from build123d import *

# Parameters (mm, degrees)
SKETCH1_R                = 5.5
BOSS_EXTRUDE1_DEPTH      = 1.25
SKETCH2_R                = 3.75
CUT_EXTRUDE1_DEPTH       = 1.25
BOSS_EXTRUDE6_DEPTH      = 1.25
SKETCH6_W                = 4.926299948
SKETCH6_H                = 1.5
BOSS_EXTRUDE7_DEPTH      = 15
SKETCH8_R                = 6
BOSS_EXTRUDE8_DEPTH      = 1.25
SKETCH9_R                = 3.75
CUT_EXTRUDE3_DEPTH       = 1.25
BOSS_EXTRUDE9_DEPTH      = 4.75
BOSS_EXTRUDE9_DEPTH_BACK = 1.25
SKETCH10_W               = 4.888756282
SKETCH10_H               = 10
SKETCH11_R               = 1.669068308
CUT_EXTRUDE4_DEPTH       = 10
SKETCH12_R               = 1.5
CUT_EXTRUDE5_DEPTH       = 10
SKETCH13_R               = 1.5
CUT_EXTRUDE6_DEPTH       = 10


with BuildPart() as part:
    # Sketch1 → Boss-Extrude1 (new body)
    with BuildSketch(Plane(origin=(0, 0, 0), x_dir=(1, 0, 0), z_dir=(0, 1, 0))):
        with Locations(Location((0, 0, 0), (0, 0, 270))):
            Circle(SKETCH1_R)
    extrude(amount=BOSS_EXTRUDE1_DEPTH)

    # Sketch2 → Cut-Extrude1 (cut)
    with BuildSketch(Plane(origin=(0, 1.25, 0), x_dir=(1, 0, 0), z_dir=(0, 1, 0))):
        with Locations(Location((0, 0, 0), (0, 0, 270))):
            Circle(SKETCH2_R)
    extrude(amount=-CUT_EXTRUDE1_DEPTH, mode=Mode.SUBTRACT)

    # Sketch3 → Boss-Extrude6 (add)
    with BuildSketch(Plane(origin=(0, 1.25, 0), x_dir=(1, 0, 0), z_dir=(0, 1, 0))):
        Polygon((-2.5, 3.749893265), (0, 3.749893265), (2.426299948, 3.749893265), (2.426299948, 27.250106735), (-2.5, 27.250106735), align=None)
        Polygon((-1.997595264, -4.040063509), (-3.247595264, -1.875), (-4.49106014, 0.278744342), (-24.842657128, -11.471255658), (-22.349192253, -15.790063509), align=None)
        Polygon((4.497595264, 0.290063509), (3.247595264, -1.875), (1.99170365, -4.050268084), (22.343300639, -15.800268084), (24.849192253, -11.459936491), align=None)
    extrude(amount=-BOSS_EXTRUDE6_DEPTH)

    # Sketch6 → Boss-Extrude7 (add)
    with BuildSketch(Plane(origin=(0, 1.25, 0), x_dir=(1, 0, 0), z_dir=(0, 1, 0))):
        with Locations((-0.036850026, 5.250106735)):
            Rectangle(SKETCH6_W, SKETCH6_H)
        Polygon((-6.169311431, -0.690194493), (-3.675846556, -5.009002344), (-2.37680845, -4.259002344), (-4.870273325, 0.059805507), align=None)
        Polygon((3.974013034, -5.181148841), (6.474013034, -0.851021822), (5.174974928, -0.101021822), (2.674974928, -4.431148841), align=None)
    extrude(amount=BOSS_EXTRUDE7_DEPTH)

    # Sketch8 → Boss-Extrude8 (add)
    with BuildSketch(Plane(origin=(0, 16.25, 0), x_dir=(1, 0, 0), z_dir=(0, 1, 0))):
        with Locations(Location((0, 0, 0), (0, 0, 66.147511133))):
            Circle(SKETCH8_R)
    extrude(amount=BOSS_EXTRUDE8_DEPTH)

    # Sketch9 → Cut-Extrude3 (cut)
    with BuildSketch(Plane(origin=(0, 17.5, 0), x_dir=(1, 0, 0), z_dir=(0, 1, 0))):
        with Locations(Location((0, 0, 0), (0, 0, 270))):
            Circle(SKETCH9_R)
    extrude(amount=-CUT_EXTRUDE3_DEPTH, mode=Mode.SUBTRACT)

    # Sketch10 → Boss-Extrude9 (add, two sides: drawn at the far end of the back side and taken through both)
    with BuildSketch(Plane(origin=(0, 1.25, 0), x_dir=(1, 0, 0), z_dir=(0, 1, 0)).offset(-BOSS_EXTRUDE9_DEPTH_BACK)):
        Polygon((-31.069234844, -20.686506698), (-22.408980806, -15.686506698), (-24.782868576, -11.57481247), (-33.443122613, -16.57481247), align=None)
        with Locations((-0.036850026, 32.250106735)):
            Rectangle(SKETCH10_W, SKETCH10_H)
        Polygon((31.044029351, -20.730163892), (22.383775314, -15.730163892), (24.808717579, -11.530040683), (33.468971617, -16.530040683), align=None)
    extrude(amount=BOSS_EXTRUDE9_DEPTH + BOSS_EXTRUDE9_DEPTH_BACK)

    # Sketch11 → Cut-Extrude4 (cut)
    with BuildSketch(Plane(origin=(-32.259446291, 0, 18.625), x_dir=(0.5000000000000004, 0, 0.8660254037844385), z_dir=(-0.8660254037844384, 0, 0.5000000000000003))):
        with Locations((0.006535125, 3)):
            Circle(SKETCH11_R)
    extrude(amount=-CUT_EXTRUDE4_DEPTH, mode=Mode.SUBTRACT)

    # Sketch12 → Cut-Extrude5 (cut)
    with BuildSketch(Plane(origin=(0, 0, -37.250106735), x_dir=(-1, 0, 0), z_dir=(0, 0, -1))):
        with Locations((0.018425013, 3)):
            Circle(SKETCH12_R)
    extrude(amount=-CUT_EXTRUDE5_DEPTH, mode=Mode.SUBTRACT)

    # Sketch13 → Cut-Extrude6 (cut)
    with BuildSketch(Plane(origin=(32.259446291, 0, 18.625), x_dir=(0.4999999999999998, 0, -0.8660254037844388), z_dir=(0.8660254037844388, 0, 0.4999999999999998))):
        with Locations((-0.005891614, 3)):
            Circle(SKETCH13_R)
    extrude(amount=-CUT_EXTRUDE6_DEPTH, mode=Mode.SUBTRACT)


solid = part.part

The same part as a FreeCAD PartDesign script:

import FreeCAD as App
import Part
import Sketcher

V = App.Vector
Q = App.Units.Quantity


def add_polygon(sketch, points):
    """Adds a closed chain of lines whose ends are joined by coincident constraints."""
    first, n = sketch.GeometryCount, len(points)
    for a, b in zip(points, points[1:] + points[:1]):
        sketch.addGeometry(Part.LineSegment(App.Vector(*a, 0), App.Vector(*b, 0)), False)
    for i in range(n):
        sketch.addConstraint(Sketcher.Constraint("Coincident", first + i, 2, first + (i + 1) % n, 1))

doc = App.newDocument("Part")
body = doc.addObject("PartDesign::Body", "Body")

sketch1 = body.newObject("Sketcher::SketchObject", "Sketch")
sketch1.AttachmentSupport = (doc.getObject("XZ_Plane"), [""])
sketch1.MapMode = "FlatFace"
sketch1.addGeometry(Part.Circle(V(0, 0, 0), V(0, 0, 1), 6), False)
sketch1.addConstraint(Sketcher.Constraint("Coincident", 0, 3, -1, 1))
sketch1.addConstraint(Sketcher.Constraint("Diameter", 0, Q("11 mm")))
pad1 = body.newObject("PartDesign::Pad", "Pad")
pad1.Profile = sketch1
pad1.Length = 1.25
pad1.Reversed = True

sketch2 = body.newObject("Sketcher::SketchObject", "Sketch001")
sketch2.AttachmentSupport = (doc.getObject("XZ_Plane"), [""])
sketch2.MapMode = "FlatFace"
sketch2.AttachmentOffset = App.Placement(V(0, 0, -1.25), App.Rotation())
sketch2.addGeometry(Part.Circle(V(0, 0, 0), V(0, 0, 1), 3.8), False)
sketch2.addConstraint(Sketcher.Constraint("Coincident", 0, 3, -1, 1))
sketch2.addConstraint(Sketcher.Constraint("Diameter", 0, Q("7.5 mm")))
pocket1 = body.newObject("PartDesign::Pocket", "Pocket")
pocket1.Profile = sketch2
pocket1.Length = 1.25
pocket1.Reversed = True

sketch3 = body.newObject("Sketcher::SketchObject", "Sketch002")
sketch3.AttachmentSupport = (doc.getObject("XZ_Plane"), [""])
sketch3.MapMode = "FlatFace"
sketch3.AttachmentOffset = App.Placement(V(0, 0, -1.25), App.Rotation())
add_polygon(sketch3, [(-2.5, -3.7), (2.4, -3.7), (2.4, -27.3), (-2.5, -27.3)])
add_polygon(sketch3, [(-2, 4), (-3.2, 1.9), (-4.5, -0.3), (-24.8, 11.5), (-22.3, 15.8)])
add_polygon(sketch3, [(4.5, -0.3), (3.2, 1.9), (2, 4.1), (22.3, 15.8), (24.8, 11.5)])
sketch3.addConstraint(Sketcher.Constraint("Horizontal", 0))
sketch3.addConstraint(Sketcher.Constraint("Vertical", 1))
sketch3.addConstraint(Sketcher.Constraint("Horizontal", 2))
sketch3.addConstraint(Sketcher.Constraint("Vertical", 3))
sketch3.addConstraint(Sketcher.Constraint("Symmetric", 4, 2, 9, 2, -2))
sketch3.addConstraint(Sketcher.Constraint("Parallel", 4, 5))
sketch3.addConstraint(Sketcher.Constraint("Perpendicular", 5, 6))
sketch3.addConstraint(Sketcher.Constraint("Perpendicular", 6, 7))
sketch3.addConstraint(Sketcher.Constraint("Perpendicular", 7, 8))
sketch3.addConstraint(Sketcher.Constraint("Parallel", 9, 10))
sketch3.addConstraint(Sketcher.Constraint("Perpendicular", 10, 11))
sketch3.addConstraint(Sketcher.Constraint("Perpendicular", 11, 12))
sketch3.addConstraint(Sketcher.Constraint("Perpendicular", 12, 13))
sketch3.addConstraint(Sketcher.Constraint("Equal", 4, 9))
sketch3.addConstraint(Sketcher.Constraint("Equal", 8, 11))
sketch3.addConstraint(Sketcher.Constraint("Angle", 4, Q("-120 deg")))
sketch3.addConstraint(Sketcher.Constraint("Angle", 9, Q("120 deg")))
sketch3.addConstraint(Sketcher.Constraint("Distance", 4, Q("2.5 mm")))
sketch3.addConstraint(Sketcher.Constraint("Distance", 6, Q("23.5 mm")))
sketch3.addConstraint(Sketcher.Constraint("DistanceX", 2, 2, -1, 1, Q("2.5 mm")))
sketch3.addConstraint(Sketcher.Constraint("DistanceX", 0, 1, 0, 2, Q("4.9263 mm")))
sketch3.addConstraint(Sketcher.Constraint("DistanceY", -1, 1, 4, 2, Q("1.875 mm")))
sketch3.addConstraint(Sketcher.Constraint("DistanceX", 0, 2, 11, 2, Q("19.917001 mm")))
sketch3.addConstraint(Sketcher.Constraint("DistanceX", 8, 2, 10, 2, Q("3.989299 mm")))
sketch3.addConstraint(Sketcher.Constraint("Distance", 5, Q("2.48693 mm")))
sketch3.addConstraint(Sketcher.Constraint("DistanceY", 1, 2, 1, 1, Q("23.500213 mm")))
sketch3.addConstraint(Sketcher.Constraint("DistanceY", 3, 2, 5, 2, Q("3.471149 mm")))
pad2 = body.newObject("PartDesign::Pad", "Pad001")
pad2.Profile = sketch3
pad2.Length = 1.25

sketch4 = body.newObject("Sketcher::SketchObject", "Sketch003")
sketch4.AttachmentSupport = (doc.getObject("XZ_Plane"), [""])
sketch4.MapMode = "FlatFace"
sketch4.AttachmentOffset = App.Placement(V(0, 0, -1.25), App.Rotation())
add_polygon(sketch4, [(-2.5, -6), (-2.5, -4.5), (2.4, -4.5), (2.4, -6)])
add_polygon(sketch4, [(-6.2, 0.7), (-3.7, 5), (-2.4, 4.3), (-4.9, -0.1)])
add_polygon(sketch4, [(4, 5.2), (6.5, 0.9), (5.2, 0.1), (2.7, 4.4)])
sketch4.addConstraint(Sketcher.Constraint("Vertical", 0))
sketch4.addConstraint(Sketcher.Constraint("Horizontal", 1))
sketch4.addConstraint(Sketcher.Constraint("Vertical", 2))
sketch4.addConstraint(Sketcher.Constraint("Horizontal", 3))
sketch4.addConstraint(Sketcher.Constraint("Perpendicular", 4, 5))
sketch4.addConstraint(Sketcher.Constraint("Perpendicular", 5, 6))
sketch4.addConstraint(Sketcher.Constraint("Perpendicular", 6, 7))
sketch4.addConstraint(Sketcher.Constraint("Perpendicular", 8, 9))
sketch4.addConstraint(Sketcher.Constraint("Perpendicular", 9, 10))
sketch4.addConstraint(Sketcher.Constraint("Perpendicular", 10, 11))
sketch4.addConstraint(Sketcher.Constraint("Equal", 7, 9))
sketch4.addConstraint(Sketcher.Constraint("Angle", 4, Q("60 deg")))
sketch4.addConstraint(Sketcher.Constraint("Angle", 8, Q("-60 deg")))
sketch4.addConstraint(Sketcher.Constraint("Distance", 8, Q("5 mm")))
sketch4.addConstraint(Sketcher.Constraint("DistanceY", 0, 1, 0, 2, Q("1.5 mm")))
sketch4.addConstraint(Sketcher.Constraint("Distance", 5, Q("1.5 mm")))
sketch4.addConstraint(Sketcher.Constraint("DistanceX", 0, 2, -1, 1, Q("2.5 mm")))
sketch4.addConstraint(Sketcher.Constraint("DistanceX", 1, 1, 1, 2, Q("4.9263 mm")))
sketch4.addConstraint(Sketcher.Constraint("DistanceY", 0, 2, 6, 2, Q("4.440301 mm")))
sketch4.addConstraint(Sketcher.Constraint("Distance", 4, Q("4.98693 mm")))
sketch4.addConstraint(Sketcher.Constraint("DistanceX", 5, 2, -1, 1, Q("2.376808 mm")))
sketch4.addConstraint(Sketcher.Constraint("DistanceY", -1, 1, 8, 2, Q("0.851022 mm")))
sketch4.addConstraint(Sketcher.Constraint("DistanceY", 1, 2, 8, 2, Q("5.351129 mm")))
sketch4.addConstraint(Sketcher.Constraint("DistanceX", 5, 2, 8, 2, Q("8.850821 mm")))
pad3 = body.newObject("PartDesign::Pad", "Pad002")
pad3.Profile = sketch4
pad3.Length = 15
pad3.Reversed = True

sketch5 = body.newObject("Sketcher::SketchObject", "Sketch004")
sketch5.AttachmentSupport = (doc.getObject("XZ_Plane"), [""])
sketch5.MapMode = "FlatFace"
sketch5.AttachmentOffset = App.Placement(V(0, 0, -16.25), App.Rotation())
sketch5.addGeometry(Part.Circle(V(0, 0, 0), V(0, 0, 1), 6), False)
sketch5.addConstraint(Sketcher.Constraint("Coincident", 0, 3, -1, 1))
sketch5.addConstraint(Sketcher.Constraint("Diameter", 0, Q("12 mm")))
pad4 = body.newObject("PartDesign::Pad", "Pad003")
pad4.Profile = sketch5
pad4.Length = 1.25
pad4.Reversed = True

sketch6 = body.newObject("Sketcher::SketchObject", "Sketch005")
sketch6.AttachmentSupport = (doc.getObject("XZ_Plane"), [""])
sketch6.MapMode = "FlatFace"
sketch6.AttachmentOffset = App.Placement(V(0, 0, -17.5), App.Rotation())
sketch6.addGeometry(Part.Circle(V(0, 0, 0), V(0, 0, 1), 3.8), False)
sketch6.addConstraint(Sketcher.Constraint("Coincident", 0, 3, -1, 1))
sketch6.addConstraint(Sketcher.Constraint("Diameter", 0, Q("7.5 mm")))
pocket2 = body.newObject("PartDesign::Pocket", "Pocket001")
pocket2.Profile = sketch6
pocket2.Length = 1.25
pocket2.Reversed = True

sketch7 = body.newObject("Sketcher::SketchObject", "Sketch006")
sketch7.AttachmentSupport = (doc.getObject("XZ_Plane"), [""])
sketch7.MapMode = "FlatFace"
sketch7.AttachmentOffset = App.Placement(V(0, 0, -1.25), App.Rotation())
add_polygon(sketch7, [(-31.1, 20.7), (-22.4, 15.7), (-24.8, 11.6), (-33.4, 16.6)])
add_polygon(sketch7, [(-2.5, -37.3), (-2.5, -27.3), (2.4, -27.3), (2.4, -37.3)])
add_polygon(sketch7, [(22.4, 15.7), (31, 20.7), (33.5, 16.5), (24.8, 11.5)])
sketch7.addConstraint(Sketcher.Constraint("Vertical", 4))
sketch7.addConstraint(Sketcher.Constraint("Horizontal", 5))
sketch7.addConstraint(Sketcher.Constraint("Vertical", 6))
sketch7.addConstraint(Sketcher.Constraint("Horizontal", 7))
sketch7.addConstraint(Sketcher.Constraint("Perpendicular", 0, 1))
sketch7.addConstraint(Sketcher.Constraint("Perpendicular", 1, 2))
sketch7.addConstraint(Sketcher.Constraint("Perpendicular", 2, 3))
sketch7.addConstraint(Sketcher.Constraint("Perpendicular", 8, 9))
sketch7.addConstraint(Sketcher.Constraint("Perpendicular", 9, 10))
sketch7.addConstraint(Sketcher.Constraint("Perpendicular", 10, 11))
sketch7.addConstraint(Sketcher.Constraint("Equal", 2, 8))
sketch7.addConstraint(Sketcher.Constraint("DistanceY", 4, 1, 4, 2, Q("10 mm")))
sketch7.addConstraint(Sketcher.Constraint("Angle", 0, Q("-30 deg")))
sketch7.addConstraint(Sketcher.Constraint("Angle", 8, Q("30 deg")))
sketch7.addConstraint(Sketcher.Constraint("Distance", 0, Q("10 mm")))
sketch7.addConstraint(Sketcher.Constraint("DistanceX", 5, 2, 8, 2, Q("28.636501 mm")))
sketch7.addConstraint(Sketcher.Constraint("DistanceX", 4, 2, 9, 2, Q("35.9502 mm")))
sketch7.addConstraint(Sketcher.Constraint("DistanceX", 0, 2, 10, 2, Q("47.217698 mm")))
sketch7.addConstraint(Sketcher.Constraint("DistanceX", 5, 1, 5, 2, Q("4.888756 mm")))
sketch7.addConstraint(Sketcher.Constraint("DistanceX", 0, 2, -1, 1, Q("22.408981 mm")))
sketch7.addConstraint(Sketcher.Constraint("DistanceX", 1, 2, -1, 1, Q("24.782869 mm")))
sketch7.addConstraint(Sketcher.Constraint("DistanceY", -1, 1, 9, 2, Q("16.530041 mm")))
sketch7.addConstraint(Sketcher.Constraint("DistanceY", 4, 2, 1, 2, Q("38.824919 mm")))
sketch7.addConstraint(Sketcher.Constraint("DistanceY", 5, 2, 8, 2, Q("47.980271 mm")))
pad5 = body.newObject("PartDesign::Pad", "Pad004")
pad5.Profile = sketch7
pad5.Type = "TwoLengths"
pad5.Length = 4.75
pad5.Length2 = 1.25
pad5.Reversed = True

sketch8 = body.newObject("Sketcher::SketchObject", "Sketch007")
sketch8.Placement = App.Placement(V(-32.259446, 0, 18.625), App.Rotation(V(0.5, 0, 0.866025404), V(0, 1, 0), V(-0.866025404, 0, 0.5), "ZXY"))
sketch8.addGeometry(Part.Circle(V(0, 3, 0), V(0, 0, 1), 1.7), False)
sketch8.addConstraint(Sketcher.Constraint("DistanceY", -1, 1, 0, 3, Q("3 mm")))
sketch8.addConstraint(Sketcher.Constraint("Diameter", 0, Q("3.338137 mm")))
sketch8.addConstraint(Sketcher.Constraint("DistanceX", -1, 1, 0, 3, Q("0.006535 mm")))
pocket3 = body.newObject("PartDesign::Pocket", "Pocket002")
pocket3.Profile = sketch8
pocket3.Length = 10

sketch9 = body.newObject("Sketcher::SketchObject", "Sketch008")
sketch9.AttachmentSupport = (doc.getObject("XY_Plane"), [""])
sketch9.MapMode = "FlatFace"
sketch9.AttachmentOffset = App.Placement(V(0, 0, -37.250107), App.Rotation())
sketch9.addGeometry(Part.Circle(V(0, 3, 0), V(0, 0, 1), 1.5), False)
sketch9.addConstraint(Sketcher.Constraint("Diameter", 0, Q("3 mm")))
sketch9.addConstraint(Sketcher.Constraint("DistanceY", -1, 1, 0, 3, Q("3 mm")))
sketch9.addConstraint(Sketcher.Constraint("DistanceX", 0, 3, -1, 1, Q("0.018425 mm")))
pocket4 = body.newObject("PartDesign::Pocket", "Pocket003")
pocket4.Profile = sketch9
pocket4.Length = 10
pocket4.Reversed = True

sketch10 = body.newObject("Sketcher::SketchObject", "Sketch009")
sketch10.Placement = App.Placement(V(32.259446, 0, 18.625), App.Rotation(V(0.5, 0, -0.866025404), V(0, 1, 0), V(0.866025404, 0, 0.5), "ZXY"))
sketch10.addGeometry(Part.Circle(V(0, 3, 0), V(0, 0, 1), 1.5), False)
sketch10.addConstraint(Sketcher.Constraint("Diameter", 0, Q("3 mm")))
sketch10.addConstraint(Sketcher.Constraint("DistanceY", -1, 1, 0, 3, Q("3 mm")))
sketch10.addConstraint(Sketcher.Constraint("DistanceX", 0, 3, -1, 1, Q("0.005892 mm")))
pocket5 = body.newObject("PartDesign::Pocket", "Pocket004")
pocket5.Profile = sketch10
pocket5.Length = 10

doc.recompute()
